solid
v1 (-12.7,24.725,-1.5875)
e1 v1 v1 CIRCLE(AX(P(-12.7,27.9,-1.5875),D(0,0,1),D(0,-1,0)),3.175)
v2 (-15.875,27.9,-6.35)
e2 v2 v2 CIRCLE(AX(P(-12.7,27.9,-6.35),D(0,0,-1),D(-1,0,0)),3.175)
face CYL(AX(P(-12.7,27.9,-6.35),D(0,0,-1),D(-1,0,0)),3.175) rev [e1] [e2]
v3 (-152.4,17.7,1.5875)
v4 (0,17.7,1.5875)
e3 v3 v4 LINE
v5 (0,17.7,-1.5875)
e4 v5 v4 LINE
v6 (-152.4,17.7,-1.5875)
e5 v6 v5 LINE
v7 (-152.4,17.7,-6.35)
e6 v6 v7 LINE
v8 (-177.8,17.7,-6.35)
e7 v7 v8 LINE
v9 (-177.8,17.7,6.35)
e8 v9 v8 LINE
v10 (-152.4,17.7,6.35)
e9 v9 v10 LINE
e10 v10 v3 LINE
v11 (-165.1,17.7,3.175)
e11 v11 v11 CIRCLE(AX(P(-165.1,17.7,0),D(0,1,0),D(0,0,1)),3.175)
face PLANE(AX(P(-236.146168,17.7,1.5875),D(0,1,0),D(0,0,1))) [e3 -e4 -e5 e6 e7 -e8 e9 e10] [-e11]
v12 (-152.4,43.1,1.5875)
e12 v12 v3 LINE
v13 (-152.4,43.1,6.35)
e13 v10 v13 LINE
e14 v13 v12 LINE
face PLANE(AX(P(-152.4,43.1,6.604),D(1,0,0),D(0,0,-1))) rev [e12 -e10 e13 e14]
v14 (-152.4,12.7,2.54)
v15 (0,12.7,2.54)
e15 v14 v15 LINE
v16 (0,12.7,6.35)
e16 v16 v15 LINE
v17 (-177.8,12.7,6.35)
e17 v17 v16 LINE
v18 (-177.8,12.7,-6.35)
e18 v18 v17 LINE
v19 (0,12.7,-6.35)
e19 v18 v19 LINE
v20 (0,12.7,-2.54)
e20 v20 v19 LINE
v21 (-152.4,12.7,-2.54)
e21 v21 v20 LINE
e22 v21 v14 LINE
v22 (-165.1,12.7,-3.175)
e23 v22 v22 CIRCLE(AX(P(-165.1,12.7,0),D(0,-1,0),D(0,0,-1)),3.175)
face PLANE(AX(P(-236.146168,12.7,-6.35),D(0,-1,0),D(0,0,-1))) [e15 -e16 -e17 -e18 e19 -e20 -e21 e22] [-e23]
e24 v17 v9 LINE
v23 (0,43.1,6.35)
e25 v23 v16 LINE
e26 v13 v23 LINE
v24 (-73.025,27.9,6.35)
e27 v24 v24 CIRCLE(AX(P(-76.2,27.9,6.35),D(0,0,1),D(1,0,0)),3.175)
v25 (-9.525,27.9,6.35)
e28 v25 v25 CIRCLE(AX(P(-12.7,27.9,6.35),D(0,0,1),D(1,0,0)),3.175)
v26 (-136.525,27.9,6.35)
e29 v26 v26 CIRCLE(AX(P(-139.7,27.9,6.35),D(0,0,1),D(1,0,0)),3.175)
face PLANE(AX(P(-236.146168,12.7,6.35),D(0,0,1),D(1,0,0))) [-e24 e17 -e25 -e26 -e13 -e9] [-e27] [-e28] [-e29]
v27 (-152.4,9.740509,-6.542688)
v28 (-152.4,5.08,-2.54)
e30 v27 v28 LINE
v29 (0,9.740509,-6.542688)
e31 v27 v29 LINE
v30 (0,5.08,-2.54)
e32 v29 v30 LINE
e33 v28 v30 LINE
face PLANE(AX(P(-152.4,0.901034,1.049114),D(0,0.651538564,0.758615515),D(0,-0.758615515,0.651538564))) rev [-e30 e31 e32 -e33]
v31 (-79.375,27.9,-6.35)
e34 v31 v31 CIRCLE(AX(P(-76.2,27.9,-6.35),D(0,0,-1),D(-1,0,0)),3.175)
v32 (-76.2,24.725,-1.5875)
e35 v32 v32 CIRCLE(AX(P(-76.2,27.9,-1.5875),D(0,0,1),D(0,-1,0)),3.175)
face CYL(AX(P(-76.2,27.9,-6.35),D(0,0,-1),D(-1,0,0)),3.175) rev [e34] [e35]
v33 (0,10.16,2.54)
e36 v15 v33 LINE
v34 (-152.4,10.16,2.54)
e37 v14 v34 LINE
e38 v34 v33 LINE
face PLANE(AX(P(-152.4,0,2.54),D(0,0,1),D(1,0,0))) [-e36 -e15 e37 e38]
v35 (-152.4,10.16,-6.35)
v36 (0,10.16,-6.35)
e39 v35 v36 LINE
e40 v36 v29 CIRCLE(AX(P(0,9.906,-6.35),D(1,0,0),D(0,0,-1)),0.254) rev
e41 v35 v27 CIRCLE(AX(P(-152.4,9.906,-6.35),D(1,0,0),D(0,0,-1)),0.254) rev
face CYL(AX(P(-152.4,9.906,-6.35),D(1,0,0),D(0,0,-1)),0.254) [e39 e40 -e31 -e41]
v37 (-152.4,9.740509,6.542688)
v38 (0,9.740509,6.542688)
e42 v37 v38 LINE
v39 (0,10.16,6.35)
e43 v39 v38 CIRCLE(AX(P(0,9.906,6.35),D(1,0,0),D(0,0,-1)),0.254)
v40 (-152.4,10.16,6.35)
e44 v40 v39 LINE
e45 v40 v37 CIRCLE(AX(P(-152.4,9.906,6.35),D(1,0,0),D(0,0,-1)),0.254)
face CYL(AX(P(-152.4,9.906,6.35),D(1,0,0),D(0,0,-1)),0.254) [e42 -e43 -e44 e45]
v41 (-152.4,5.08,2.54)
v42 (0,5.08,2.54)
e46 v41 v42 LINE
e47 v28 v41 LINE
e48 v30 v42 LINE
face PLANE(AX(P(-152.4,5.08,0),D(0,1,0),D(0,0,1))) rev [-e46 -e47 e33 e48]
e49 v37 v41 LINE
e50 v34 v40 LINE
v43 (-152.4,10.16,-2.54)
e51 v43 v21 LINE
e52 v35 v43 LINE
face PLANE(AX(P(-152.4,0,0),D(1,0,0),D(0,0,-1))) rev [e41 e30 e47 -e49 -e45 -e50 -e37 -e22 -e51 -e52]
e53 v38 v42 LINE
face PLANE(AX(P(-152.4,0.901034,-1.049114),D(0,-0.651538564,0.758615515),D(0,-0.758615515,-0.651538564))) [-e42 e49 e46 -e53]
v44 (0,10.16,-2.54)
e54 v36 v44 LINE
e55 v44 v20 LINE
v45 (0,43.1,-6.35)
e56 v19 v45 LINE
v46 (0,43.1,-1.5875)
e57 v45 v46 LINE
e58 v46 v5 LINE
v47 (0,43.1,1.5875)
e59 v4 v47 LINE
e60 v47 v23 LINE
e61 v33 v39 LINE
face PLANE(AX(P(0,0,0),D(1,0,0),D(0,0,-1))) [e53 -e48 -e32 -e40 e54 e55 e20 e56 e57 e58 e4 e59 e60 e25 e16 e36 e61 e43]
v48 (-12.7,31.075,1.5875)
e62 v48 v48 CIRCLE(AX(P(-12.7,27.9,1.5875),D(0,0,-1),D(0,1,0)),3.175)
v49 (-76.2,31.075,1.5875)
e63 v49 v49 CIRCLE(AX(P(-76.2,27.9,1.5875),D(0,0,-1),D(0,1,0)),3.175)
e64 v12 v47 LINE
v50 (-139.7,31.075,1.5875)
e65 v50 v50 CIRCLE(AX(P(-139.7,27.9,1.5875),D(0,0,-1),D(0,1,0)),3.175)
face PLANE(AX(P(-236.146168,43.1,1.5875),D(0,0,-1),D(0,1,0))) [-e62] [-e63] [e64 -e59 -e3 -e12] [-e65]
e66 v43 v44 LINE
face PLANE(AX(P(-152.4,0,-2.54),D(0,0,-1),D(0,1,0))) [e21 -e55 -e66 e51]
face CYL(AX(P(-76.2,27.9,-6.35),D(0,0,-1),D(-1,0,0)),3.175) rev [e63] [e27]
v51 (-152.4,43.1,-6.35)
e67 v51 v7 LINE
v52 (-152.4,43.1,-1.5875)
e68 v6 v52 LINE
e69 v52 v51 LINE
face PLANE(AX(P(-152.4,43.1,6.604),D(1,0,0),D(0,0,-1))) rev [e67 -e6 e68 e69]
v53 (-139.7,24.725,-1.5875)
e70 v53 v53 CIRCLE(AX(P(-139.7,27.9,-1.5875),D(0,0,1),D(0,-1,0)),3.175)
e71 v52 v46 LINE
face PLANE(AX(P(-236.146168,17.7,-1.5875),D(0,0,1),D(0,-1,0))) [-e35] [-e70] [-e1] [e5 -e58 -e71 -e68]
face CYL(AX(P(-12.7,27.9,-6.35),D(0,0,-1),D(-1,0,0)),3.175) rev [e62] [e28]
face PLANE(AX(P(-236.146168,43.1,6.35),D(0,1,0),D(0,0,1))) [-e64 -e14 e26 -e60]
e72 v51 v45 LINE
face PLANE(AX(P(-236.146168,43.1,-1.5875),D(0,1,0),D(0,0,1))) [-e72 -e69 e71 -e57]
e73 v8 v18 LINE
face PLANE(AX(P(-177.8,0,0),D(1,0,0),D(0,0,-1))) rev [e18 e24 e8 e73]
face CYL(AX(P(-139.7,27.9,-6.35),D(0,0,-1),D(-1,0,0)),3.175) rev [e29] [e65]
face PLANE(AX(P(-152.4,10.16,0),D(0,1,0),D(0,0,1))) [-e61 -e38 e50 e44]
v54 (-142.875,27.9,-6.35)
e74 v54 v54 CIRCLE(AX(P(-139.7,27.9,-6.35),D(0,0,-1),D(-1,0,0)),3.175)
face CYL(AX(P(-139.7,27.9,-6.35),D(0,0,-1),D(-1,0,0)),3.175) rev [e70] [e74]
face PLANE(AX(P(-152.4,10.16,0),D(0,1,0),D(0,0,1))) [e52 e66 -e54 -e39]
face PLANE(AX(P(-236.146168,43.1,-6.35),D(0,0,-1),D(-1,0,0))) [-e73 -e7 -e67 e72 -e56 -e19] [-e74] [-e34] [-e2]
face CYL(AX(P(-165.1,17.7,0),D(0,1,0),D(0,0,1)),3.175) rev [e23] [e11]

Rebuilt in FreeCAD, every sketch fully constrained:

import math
import FreeCAD as App
import Part
import Sketcher
Q = App.Units.Quantity

doc = App.newDocument("Part")
params = doc.addObject("Spreadsheet::Sheet", "Params")
for row, (alias, value) in enumerate([
    ("sketch1_radius", "0.01 in"),
    ("sketch1_width", "0.1 in"),
    ("sketch1_height", "0.2 in"),
    ("sketch1_height2", "0.15 in"),
    ("pad1_length", "6 in"),
    ("sketch2_width", "1 in"),
    ("sketch2_height", "0.5 in"),
    ("sketch2_height2", "0.1875 in"),
    ("pad2_length", "7 in"),
    ("sketch3_width", "1 in"),
    ("sketch4_diameter", "0.25 in"),
    ("hole_diameter", "0.25 in"),
    ("sketch5_diameter", "0.25 in"),
    ("hole2_diameter", "0.25 in"),
], start=1):
    params.set(f"A{row}", alias)
    params.set(f"B{row}", "=" + value)
    params.setAlias(f"B{row}", alias)

body = doc.addObject("PartDesign::Body", "Body")

# Sketch on YZ plane
sketch1 = body.newObject("Sketcher::SketchObject", "Sketch")
sketch1.AttachmentSupport = (doc.getObject("YZ_Plane"), [""])
sketch1.MapMode = "FlatFace"
sketch1.addGeometry([
    Part.LineSegment(App.Vector(5.08, 2.54, 0), App.Vector(5.08, -2.54, 0)),  # 0
    Part.LineSegment(App.Vector(5.08, -2.54, 0), App.Vector(9.74, -6.54, 0)),  # 1
    Part.ArcOfCircle(Part.Circle(App.Vector(9.91, -6.35, 0), App.Vector(0, 0, 1), 0.25), math.radians(-131), math.radians(0)),  # 2
    Part.LineSegment(App.Vector(10.16, -6.35, 0), App.Vector(10.16, -2.54, 0)),  # 3
    Part.LineSegment(App.Vector(10.16, -2.54, 0), App.Vector(12.7, -2.54, 0)),  # 4
    Part.LineSegment(App.Vector(12.7, -2.54, 0), App.Vector(12.7, 2.54, 0)),  # 5
    Part.LineSegment(App.Vector(12.7, 2.54, 0), App.Vector(10.16, 2.54, 0)),  # 6
    Part.LineSegment(App.Vector(10.16, 2.54, 0), App.Vector(10.16, 6.35, 0)),  # 7
    Part.ArcOfCircle(Part.Circle(App.Vector(9.91, 6.35, 0), App.Vector(0, 0, 1), 0.25), math.radians(0), math.radians(131)),  # 8
    Part.LineSegment(App.Vector(9.74, 6.54, 0), App.Vector(5.08, 2.54, 0)),  # 9
], False)
sketch1.addConstraint([
    Sketcher.Constraint("Coincident", 0, 2, 1, 1),
    Sketcher.Constraint("Tangent", 1, 2, 2, 1),
    Sketcher.Constraint("Tangent", 2, 2, 3, 1),
    Sketcher.Constraint("Coincident", 3, 2, 4, 1),
    Sketcher.Constraint("Coincident", 4, 2, 5, 1),
    Sketcher.Constraint("Coincident", 5, 2, 6, 1),
    Sketcher.Constraint("Coincident", 6, 2, 7, 1),
    Sketcher.Constraint("Tangent", 7, 2, 8, 1),
    Sketcher.Constraint("Tangent", 8, 2, 9, 1),
    Sketcher.Constraint("Coincident", 9, 2, 0, 1),
    Sketcher.Constraint("Vertical", 0),
    Sketcher.Constraint("Vertical", 3),
    Sketcher.Constraint("Horizontal", 4),
    Sketcher.Constraint("Vertical", 5),
    Sketcher.Constraint("Horizontal", 6),
    Sketcher.Constraint("Vertical", 7),
    Sketcher.Constraint("Equal", 2, 8),
    Sketcher.Constraint("Symmetric", 2, 3, 8, 3, -1),
    Sketcher.Constraint("Horizontal", 0, 2, 3, 2),
    Sketcher.Constraint("Horizontal", 6, 2, 9, 2),
    Sketcher.Constraint("Vertical", 1, 2, 8, 2),
    Sketcher.Constraint("Radius", 2, Q("0.01 in")),
    Sketcher.Constraint("DistanceX", 4, 1, 4, 2, Q("0.1 in")),
    Sketcher.Constraint("DistanceY", 0, 2, 0, 1, Q("0.2 in")),
    Sketcher.Constraint("DistanceY", 3, 1, 3, 2, Q("0.15 in")),
    Sketcher.Constraint("DistanceX", -1, 1, 0, 2, Q("0.2 in")),
    Sketcher.Constraint("DistanceX", -1, 1, 2, 2, Q("0.4 in")),
])
sketch1.setExpression("Constraints[21]", "Params.sketch1_radius")
sketch1.setExpression("Constraints[22]", "Params.sketch1_width")
sketch1.setExpression("Constraints[23]", "Params.sketch1_height")
sketch1.setExpression("Constraints[24]", "Params.sketch1_height2")
pad1 = body.newObject("PartDesign::Pad", "Pad")
pad1.Profile = sketch1
pad1.setExpression("Length", "Params.pad1_length")
pad1.Reversed = True

# Sketch on YZ plane
sketch2 = body.newObject("Sketcher::SketchObject", "Sketch001")
sketch2.AttachmentSupport = (doc.getObject("YZ_Plane"), [""])
sketch2.MapMode = "FlatFace"
sketch2.addGeometry([
    Part.LineSegment(App.Vector(12.7, 6.3, 0), App.Vector(12.7, -6.3, 0)),  # 0
    Part.LineSegment(App.Vector(12.7, -6.3, 0), App.Vector(43.1, -6.3, 0)),  # 1
    Part.LineSegment(App.Vector(43.1, -6.3, 0), App.Vector(43.1, -1.6, 0)),  # 2
    Part.LineSegment(App.Vector(43.1, -1.6, 0), App.Vector(17.7, -1.6, 0)),  # 3
    Part.LineSegment(App.Vector(17.7, -1.6, 0), App.Vector(17.7, 1.6, 0)),  # 4
    Part.LineSegment(App.Vector(17.7, 1.6, 0), App.Vector(43.1, 1.6, 0)),  # 5
    Part.LineSegment(App.Vector(43.1, 1.6, 0), App.Vector(43.1, 6.3, 0)),  # 6
    Part.LineSegment(App.Vector(43.1, 6.3, 0), App.Vector(12.7, 6.3, 0)),  # 7
], False)
sketch2.addConstraint([
    Sketcher.Constraint("Coincident", 0, 2, 1, 1),
    Sketcher.Constraint("Coincident", 1, 2, 2, 1),
    Sketcher.Constraint("Coincident", 2, 2, 3, 1),
    Sketcher.Constraint("Coincident", 3, 2, 4, 1),
    Sketcher.Constraint("Coincident", 4, 2, 5, 1),
    Sketcher.Constraint("Coincident", 5, 2, 6, 1),
    Sketcher.Constraint("Coincident", 6, 2, 7, 1),
    Sketcher.Constraint("Coincident", 7, 2, 0, 1),
    Sketcher.Constraint("Vertical", 0),
    Sketcher.Constraint("Horizontal", 1),
    Sketcher.Constraint("Vertical", 2),
    Sketcher.Constraint("Horizontal", 3),
    Sketcher.Constraint("Vertical", 4),
    Sketcher.Constraint("Horizontal", 5),
    Sketcher.Constraint("Vertical", 6),
    Sketcher.Constraint("Horizontal", 7),
    Sketcher.Constraint("Symmetric", 2, 2, 5, 2, -1),
    Sketcher.Constraint("Equal", 2, 6),
    Sketcher.Constraint("DistanceX", 3, 2, 3, 1, Q("1 in")),
    Sketcher.Constraint("DistanceY", 0, 2, 0, 1, Q("0.5 in")),
    Sketcher.Constraint("DistanceX", -1, 1, 0, 2, Q("0.5 in")),
    Sketcher.Constraint("DistanceY", 2, 1, 2, 2, Q("0.1875 in")),
    Sketcher.Constraint("DistanceX", 1, 1, 1, 2, 30.4),
])
sketch2.setExpression("Constraints[18]", "Params.sketch2_width")
sketch2.setExpression("Constraints[19]", "Params.sketch2_height")
sketch2.setExpression("Constraints[21]", "Params.sketch2_height2")
pad2 = body.newObject("PartDesign::Pad", "Pad001")
pad2.Profile = sketch2
pad2.setExpression("Length", "Params.pad2_length")
pad2.Reversed = True

# Sketch on XY plane
sketch3 = body.newObject("Sketcher::SketchObject", "Sketch002")
sketch3.AttachmentSupport = (doc.getObject("XY_Plane"), [""])
sketch3.MapMode = "FlatFace"
sketch3.AttachmentOffset = App.Placement(App.Vector(0, 0, -0.25 * 25.4), App.Rotation())
sketch3.addGeometry([
    Part.LineSegment(App.Vector(-152, 43, 0), App.Vector(-152, 18, 0)),
    Part.LineSegment(App.Vector(-152, 18, 0), App.Vector(-178, 18, 0)),
    Part.LineSegment(App.Vector(-178, 18, 0), App.Vector(-178, 43, 0)),
    Part.LineSegment(App.Vector(-178, 43, 0), App.Vector(-152, 43, 0)),
], False)
sketch3.addConstraint([
    Sketcher.Constraint("Coincident", 0, 2, 1, 1),
    Sketcher.Constraint("Coincident", 1, 2, 2, 1),
    Sketcher.Constraint("Coincident", 2, 2, 3, 1),
    Sketcher.Constraint("Coincident", 3, 2, 0, 1),
    Sketcher.Constraint("Vertical", 0),
    Sketcher.Constraint("Horizontal", 1),
    Sketcher.Constraint("Vertical", 2),
    Sketcher.Constraint("Horizontal", 3),
    Sketcher.Constraint("Equal", 3, 0),
    Sketcher.Constraint("DistanceX", 1, 2, 1, 1, Q("1 in")),
    Sketcher.Constraint("DistanceX", 0, 2, -1, 1, Q("6 in")),
    Sketcher.Constraint("DistanceY", -1, 1, 0, 2, 17.7),
])
sketch3.setExpression("Constraints[9]", "Params.sketch3_width")
pocket1 = body.newObject("PartDesign::Pocket", "Pocket")
pocket1.Profile = sketch3
pocket1.Type = "ThroughAll"
pocket1.Reversed = True

# Sketch on XY plane
sketch4 = body.newObject("Sketcher::SketchObject", "Sketch003")
sketch4.AttachmentSupport = (doc.getObject("XY_Plane"), [""])
sketch4.MapMode = "FlatFace"
sketch4.AttachmentOffset = App.Placement(App.Vector(0, 0, -0.25 * 25.4), App.Rotation())
sketch4.addGeometry([
    Part.Circle(App.Vector(-139.7, 27.9, 0), App.Vector(0, 0, 1), 3.2),
    Part.Circle(App.Vector(-12.7, 27.9, 0), App.Vector(0, 0, 1), 3.2),
    Part.Circle(App.Vector(-76.2, 27.9, 0), App.Vector(0, 0, 1), 3.2),
], False)
sketch4.addConstraint([
    Sketcher.Constraint("Equal", 0, 1),
    Sketcher.Constraint("Equal", 1, 2),
    Sketcher.Constraint("Horizontal", 0, 3, 1, 3),
    Sketcher.Constraint("Horizontal", 1, 3, 2, 3),
    Sketcher.Constraint("Diameter", 0, Q("0.25 in")),
    Sketcher.Constraint("DistanceX", 2, 3, -1, 1, Q("3 in")),
    Sketcher.Constraint("DistanceX", 0, 3, 1, 3, Q("5 in")),
    Sketcher.Constraint("DistanceX", 0, 3, -1, 1, Q("5.5 in")),
    Sketcher.Constraint("DistanceY", -1, 1, 0, 3, 27.9),
])
sketch4.setExpression("Constraints[4]", "Params.sketch4_diameter")
doc.recompute()
hole = body.newObject("PartDesign::Hole", "Hole")
hole.Profile = sketch4
hole.ThreadType = "None"
hole.setExpression("Diameter", "Params.hole_diameter")
hole.DepthType = "ThroughAll"
hole.Reversed = True

# Sketch on XZ plane
sketch5 = body.newObject("Sketcher::SketchObject", "Sketch004")
sketch5.AttachmentSupport = (doc.getObject("XZ_Plane"), [""])
sketch5.MapMode = "FlatFace"
sketch5.AttachmentOffset = App.Placement(App.Vector(0, 0, -17.7), App.Rotation())
sketch5.addGeometry(Part.Circle(App.Vector(-165.1, 0, 0), App.Vector(0, 0, 1), 3.2), False)
sketch5.addConstraint([
    Sketcher.Constraint("PointOnObject", 0, 3, -1),
    Sketcher.Constraint("Diameter", 0, Q("0.25 in")),
    Sketcher.Constraint("DistanceX", 0, 3, -1, 1, Q("6.5 in")),
])
sketch5.setExpression("Constraints[1]", "Params.sketch5_diameter")
doc.recompute()
hole2 = body.newObject("PartDesign::Hole", "Hole001")
hole2.Profile = sketch5
hole2.ThreadType = "None"
hole2.setExpression("Diameter", "Params.hole2_diameter")
hole2.DepthType = "ThroughAll"
hole2.Reversed = True

doc.recompute()
